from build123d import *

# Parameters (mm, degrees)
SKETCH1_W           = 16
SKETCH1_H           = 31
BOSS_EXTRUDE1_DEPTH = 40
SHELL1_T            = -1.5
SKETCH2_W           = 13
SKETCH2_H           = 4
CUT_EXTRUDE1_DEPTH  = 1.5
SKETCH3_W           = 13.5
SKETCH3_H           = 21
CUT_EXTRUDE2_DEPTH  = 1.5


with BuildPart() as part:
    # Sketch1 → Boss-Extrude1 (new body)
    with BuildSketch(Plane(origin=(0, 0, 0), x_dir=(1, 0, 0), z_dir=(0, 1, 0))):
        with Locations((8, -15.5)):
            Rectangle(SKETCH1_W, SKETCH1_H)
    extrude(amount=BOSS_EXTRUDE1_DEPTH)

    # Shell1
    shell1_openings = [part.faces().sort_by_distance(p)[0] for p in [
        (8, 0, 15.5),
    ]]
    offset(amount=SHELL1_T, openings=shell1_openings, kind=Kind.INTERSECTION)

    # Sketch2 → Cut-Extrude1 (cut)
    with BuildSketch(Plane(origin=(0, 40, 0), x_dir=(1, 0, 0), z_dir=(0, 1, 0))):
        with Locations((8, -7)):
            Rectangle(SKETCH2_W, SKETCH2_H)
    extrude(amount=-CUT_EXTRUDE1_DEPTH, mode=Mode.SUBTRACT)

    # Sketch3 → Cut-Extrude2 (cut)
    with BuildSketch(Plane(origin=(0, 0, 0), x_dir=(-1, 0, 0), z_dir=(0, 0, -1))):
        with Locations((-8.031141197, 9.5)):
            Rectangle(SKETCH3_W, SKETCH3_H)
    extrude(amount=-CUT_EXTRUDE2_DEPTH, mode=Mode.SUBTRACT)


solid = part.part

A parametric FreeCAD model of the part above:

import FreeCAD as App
import Part
import Sketcher

V = App.Vector
Q = App.Units.Quantity


def faces_at(feature, points):
    """Names of the faces that lie closest to the given points."""
    faces = feature.Shape.Faces
    near = lambda p: min(range(len(faces)), key=lambda i: faces[i].distToShape(Part.Vertex(*p))[0])
    return sorted({f"Face{near(p) + 1}" for p in points})

doc = App.newDocument("Part")
body = doc.addObject("PartDesign::Body", "Body")

# Sketch on XZ plane
sketch1 = doc.addObject("Sketcher::SketchObject", "Sketch")
body.addObject(sketch1)
sketch1.AttachmentSupport = (doc.XZ_Plane, [""])
sketch1.MapMode = "FlatFace"
sketch1.addGeometry([
    Part.LineSegment(V(0, 0, 0), V(0, 31, 0)),
    Part.LineSegment(V(0, 31, 0), V(16, 31, 0)),
    Part.LineSegment(V(16, 31, 0), V(16, 0, 0)),
    Part.LineSegment(V(16, 0, 0), V(0, 0, 0)),
], False)
sketch1.addConstraint([
    Sketcher.Constraint("Coincident", 0, 2, 1, 1),
    Sketcher.Constraint("Coincident", 1, 2, 2, 1),
    Sketcher.Constraint("Coincident", 2, 2, 3, 1),
    Sketcher.Constraint("Coincident", 3, 2, 0, 1),
    Sketcher.Constraint("Vertical", 0),
    Sketcher.Constraint("Horizontal", 1),
    Sketcher.Constraint("Vertical", 2),
    Sketcher.Constraint("Horizontal", 3),
    Sketcher.Constraint("Coincident", 3, 2, -1, 1),
    Sketcher.Constraint("DistanceX", 1, 1, 1, 2, Q("16 mm")),
    Sketcher.Constraint("DistanceY", 0, 1, 0, 2, Q("31 mm")),
])
pad1 = doc.addObject("PartDesign::Pad", "Pad")
body.addObject(pad1)
pad1.Profile = sketch1
pad1.Length = 40
pad1.Reversed = True
doc.recompute()

thickness = doc.addObject("PartDesign::Thickness", "Thickness")
body.addObject(thickness)
thickness.Base = (pad1, faces_at(pad1, [(8, 0, 15.5)]))
thickness.Value = 1.5
thickness.Reversed = True
thickness.Join = "Intersection"

# Sketch on XZ plane
sketch2 = doc.addObject("Sketcher::SketchObject", "Sketch001")
body.addObject(sketch2)
sketch2.AttachmentSupport = (doc.XZ_Plane, [""])
sketch2.MapMode = "FlatFace"
sketch2.AttachmentOffset = App.Placement(V(0, 0, -40), App.Rotation())
sketch2.addGeometry([
    Part.LineSegment(V(1.5, 5, 0), V(1.5, 9, 0)),
    Part.LineSegment(V(1.5, 9, 0), V(14.5, 9, 0)),
    Part.LineSegment(V(14.5, 9, 0), V(14.5, 5, 0)),
    Part.LineSegment(V(14.5, 5, 0), V(1.5, 5, 0)),
], False)
sketch2.addConstraint([
    Sketcher.Constraint("Coincident", 0, 2, 1, 1),
    Sketcher.Constraint("Coincident", 1, 2, 2, 1),
    Sketcher.Constraint("Coincident", 2, 2, 3, 1),
    Sketcher.Constraint("Coincident", 3, 2, 0, 1),
    Sketcher.Constraint("Vertical", 0),
    Sketcher.Constraint("Horizontal", 1),
    Sketcher.Constraint("Vertical", 2),
    Sketcher.Constraint("Horizontal", 3),
    Sketcher.Constraint("DistanceX", 1, 1, 1, 2, Q("13 mm")),
    Sketcher.Constraint("DistanceY", 0, 1, 0, 2, Q("4 mm")),
    Sketcher.Constraint("DistanceY", -1, 1, 0, 2, Q("9 mm")),
    Sketcher.Constraint("DistanceX", -1, 1, 0, 2, Q("1.5 mm")),
])
pocket1 = doc.addObject("PartDesign::Pocket", "Pocket")
body.addObject(pocket1)
pocket1.Profile = sketch2
pocket1.Length = 1.5
pocket1.Reversed = True

# Sketch on XY plane
sketch3 = doc.addObject("Sketcher::SketchObject", "Sketch002")
body.addObject(sketch3)
sketch3.AttachmentSupport = (doc.XY_Plane, [""])
sketch3.MapMode = "FlatFace"
sketch3.addGeometry([
    Part.LineSegment(V(14.781141, 20, 0), V(14.781141, -1, 0)),
    Part.LineSegment(V(14.781141, -1, 0), V(1.281141, -1, 0)),
    Part.LineSegment(V(1.281141, -1, 0), V(1.281141, 20, 0)),
    Part.LineSegment(V(1.281141, 20, 0), V(14.781141, 20, 0)),
], False)
sketch3.addConstraint([
    Sketcher.Constraint("Coincident", 0, 2, 1, 1),
    Sketcher.Constraint("Coincident", 1, 2, 2, 1),
    Sketcher.Constraint("Coincident", 2, 2, 3, 1),
    Sketcher.Constraint("Coincident", 3, 2, 0, 1),
    Sketcher.Constraint("Vertical", 0),
    Sketcher.Constraint("Horizontal", 1),
    Sketcher.Constraint("Vertical", 2),
    Sketcher.Constraint("Horizontal", 3),
    Sketcher.Constraint("DistanceY", 0, 2, 0, 1, Q("21 mm")),
    Sketcher.Constraint("DistanceX", 1, 2, 1, 1, Q("13.5 mm")),
    Sketcher.Constraint("DistanceY", 0, 2, -1, 1, Q("1 mm")),
    Sketcher.Constraint("DistanceX", -1, 1, 0, 2, Q("14.781141 mm")),
])
pocket2 = doc.addObject("PartDesign::Pocket", "Pocket001")
body.addObject(pocket2)
pocket2.Profile = sketch3
pocket2.Length = 1.5
pocket2.Reversed = True

doc.recompute()
